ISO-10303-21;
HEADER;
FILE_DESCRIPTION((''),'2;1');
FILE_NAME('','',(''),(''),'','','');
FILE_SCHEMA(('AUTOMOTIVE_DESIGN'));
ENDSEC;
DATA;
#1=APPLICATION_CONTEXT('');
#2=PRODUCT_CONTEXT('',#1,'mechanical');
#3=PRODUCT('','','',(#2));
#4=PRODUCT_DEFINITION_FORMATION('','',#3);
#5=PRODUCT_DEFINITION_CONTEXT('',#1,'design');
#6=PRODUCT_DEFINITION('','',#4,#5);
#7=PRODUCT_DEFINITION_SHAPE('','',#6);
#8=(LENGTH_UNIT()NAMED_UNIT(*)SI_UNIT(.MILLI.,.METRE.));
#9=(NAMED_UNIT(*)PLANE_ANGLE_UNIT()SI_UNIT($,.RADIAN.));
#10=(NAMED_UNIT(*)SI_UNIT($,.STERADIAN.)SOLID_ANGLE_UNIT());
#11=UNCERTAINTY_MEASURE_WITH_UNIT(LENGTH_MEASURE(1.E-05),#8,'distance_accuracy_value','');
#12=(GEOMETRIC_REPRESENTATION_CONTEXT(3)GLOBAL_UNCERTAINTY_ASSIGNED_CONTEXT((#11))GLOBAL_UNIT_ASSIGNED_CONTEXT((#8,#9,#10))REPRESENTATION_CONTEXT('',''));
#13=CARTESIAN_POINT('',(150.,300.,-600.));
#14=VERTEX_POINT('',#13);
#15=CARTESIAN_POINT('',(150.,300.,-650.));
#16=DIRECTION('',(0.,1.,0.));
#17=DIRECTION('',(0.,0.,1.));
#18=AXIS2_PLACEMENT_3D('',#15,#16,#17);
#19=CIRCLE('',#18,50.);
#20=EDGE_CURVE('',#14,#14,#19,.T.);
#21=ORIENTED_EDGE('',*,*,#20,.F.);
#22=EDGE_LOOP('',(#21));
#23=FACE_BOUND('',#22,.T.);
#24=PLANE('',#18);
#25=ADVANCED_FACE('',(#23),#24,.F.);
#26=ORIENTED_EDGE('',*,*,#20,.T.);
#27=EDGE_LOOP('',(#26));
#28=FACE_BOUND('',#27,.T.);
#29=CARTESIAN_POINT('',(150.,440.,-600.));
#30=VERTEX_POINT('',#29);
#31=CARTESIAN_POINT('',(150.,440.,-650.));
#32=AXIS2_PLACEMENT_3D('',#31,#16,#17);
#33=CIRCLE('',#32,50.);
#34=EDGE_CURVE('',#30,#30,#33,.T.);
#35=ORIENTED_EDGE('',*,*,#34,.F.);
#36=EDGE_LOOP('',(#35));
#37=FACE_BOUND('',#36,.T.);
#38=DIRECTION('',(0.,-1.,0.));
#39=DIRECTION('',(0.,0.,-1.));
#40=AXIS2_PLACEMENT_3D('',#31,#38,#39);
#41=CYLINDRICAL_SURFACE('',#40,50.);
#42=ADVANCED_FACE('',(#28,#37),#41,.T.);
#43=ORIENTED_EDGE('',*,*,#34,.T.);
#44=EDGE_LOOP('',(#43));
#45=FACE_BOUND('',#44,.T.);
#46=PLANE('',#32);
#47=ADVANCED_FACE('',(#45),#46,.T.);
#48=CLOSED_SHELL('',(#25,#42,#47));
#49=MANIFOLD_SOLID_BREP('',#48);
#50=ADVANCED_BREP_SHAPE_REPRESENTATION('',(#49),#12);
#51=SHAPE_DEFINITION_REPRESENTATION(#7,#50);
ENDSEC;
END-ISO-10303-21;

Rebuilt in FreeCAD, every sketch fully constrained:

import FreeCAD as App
import Part
import Sketcher
Q = App.Units.Quantity

doc = App.newDocument("Part")
params = doc.addObject("Spreadsheet::Sheet", "Params")
for row, (alias, value) in enumerate([
    ("sketch1_diameter", "100 mm"),
    ("pad1_length", "140 mm"),
], start=1):
    params.set(f"A{row}", alias)
    params.set(f"B{row}", "=" + value)
    params.setAlias(f"B{row}", alias)

body = doc.addObject("PartDesign::Body", "Body")

# Sketch on XZ plane
sketch1 = doc.addObject("Sketcher::SketchObject", "Sketch")
body.addObject(sketch1)
sketch1.AttachmentSupport = (doc.XZ_Plane, [""])
sketch1.MapMode = "FlatFace"
sketch1.AttachmentOffset = App.Placement(App.Vector(0, 0, -300), App.Rotation())
sketch1.addGeometry(Part.Circle(App.Vector(150, -650, 0), App.Vector(0, 0, 1), 50), False)
sketch1.addConstraint([
    Sketcher.Constraint("Diameter", 0, Q("100 mm")),
    Sketcher.Constraint("DistanceX", -1, 1, 0, 3, Q("150 mm")),
    Sketcher.Constraint("DistanceY", 0, 3, -1, 1, Q("650 mm")),
])
sketch1.setExpression("Constraints[0]", "Params.sketch1_diameter")
pad1 = doc.addObject("PartDesign::Pad", "Pad")
body.addObject(pad1)
pad1.Profile = sketch1
pad1.setExpression("Length", "Params.pad1_length")
pad1.Reversed = True

doc.recompute()
